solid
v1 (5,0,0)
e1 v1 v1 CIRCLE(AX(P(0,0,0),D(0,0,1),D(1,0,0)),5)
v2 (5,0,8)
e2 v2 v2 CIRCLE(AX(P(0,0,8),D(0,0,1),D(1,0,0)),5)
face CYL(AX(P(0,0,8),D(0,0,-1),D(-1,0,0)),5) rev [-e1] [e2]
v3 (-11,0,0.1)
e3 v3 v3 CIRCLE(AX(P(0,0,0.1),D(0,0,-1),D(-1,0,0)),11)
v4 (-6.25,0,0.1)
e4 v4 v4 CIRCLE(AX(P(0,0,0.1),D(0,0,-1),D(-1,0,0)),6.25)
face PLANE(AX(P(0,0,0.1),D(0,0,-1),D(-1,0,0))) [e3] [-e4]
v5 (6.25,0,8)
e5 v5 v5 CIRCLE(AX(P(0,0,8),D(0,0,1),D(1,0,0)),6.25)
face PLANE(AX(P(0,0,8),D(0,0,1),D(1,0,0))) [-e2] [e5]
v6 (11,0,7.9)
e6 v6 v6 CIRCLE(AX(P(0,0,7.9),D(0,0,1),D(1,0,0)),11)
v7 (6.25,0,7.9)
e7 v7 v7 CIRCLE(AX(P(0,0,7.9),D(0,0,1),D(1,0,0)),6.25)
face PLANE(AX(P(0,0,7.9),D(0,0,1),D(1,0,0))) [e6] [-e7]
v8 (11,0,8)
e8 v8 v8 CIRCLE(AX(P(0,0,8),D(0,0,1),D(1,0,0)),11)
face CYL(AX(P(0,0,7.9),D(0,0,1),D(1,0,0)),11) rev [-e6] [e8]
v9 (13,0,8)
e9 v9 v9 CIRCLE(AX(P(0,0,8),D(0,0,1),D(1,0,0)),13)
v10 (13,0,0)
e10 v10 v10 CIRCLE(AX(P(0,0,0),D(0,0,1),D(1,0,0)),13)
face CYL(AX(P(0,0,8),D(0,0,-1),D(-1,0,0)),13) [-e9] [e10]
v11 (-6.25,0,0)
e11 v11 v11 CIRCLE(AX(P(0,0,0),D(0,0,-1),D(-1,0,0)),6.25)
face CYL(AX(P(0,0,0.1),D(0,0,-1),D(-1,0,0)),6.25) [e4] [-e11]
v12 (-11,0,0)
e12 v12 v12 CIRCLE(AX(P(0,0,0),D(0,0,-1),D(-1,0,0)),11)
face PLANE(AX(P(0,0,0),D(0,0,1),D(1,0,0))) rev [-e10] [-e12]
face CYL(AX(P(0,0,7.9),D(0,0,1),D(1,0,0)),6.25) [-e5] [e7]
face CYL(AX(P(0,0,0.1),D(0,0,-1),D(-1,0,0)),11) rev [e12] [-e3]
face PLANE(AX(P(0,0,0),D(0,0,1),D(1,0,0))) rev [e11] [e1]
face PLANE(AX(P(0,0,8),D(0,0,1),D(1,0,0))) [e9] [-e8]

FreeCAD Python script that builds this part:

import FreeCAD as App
import Part
import Sketcher
Q = App.Units.Quantity

doc = App.newDocument("Part")
body = doc.addObject("PartDesign::Body", "Body")

# Sketch on XY plane
sketch1 = body.newObject("Sketcher::SketchObject", "Sketch")
sketch1.AttachmentSupport = (doc.getObject("XY_Plane"), [""])
sketch1.MapMode = "FlatFace"
sketch1.addGeometry([
    Part.Circle(App.Vector(0, 0, 0), App.Vector(0, 0, 1), 13),
    Part.Circle(App.Vector(0, 0, 0), App.Vector(0, 0, 1), 5),
], False)
sketch1.addConstraint([
    Sketcher.Constraint("Coincident", 0, 3, -1, 1),
    Sketcher.Constraint("Coincident", 1, 3, -1, 1),
    Sketcher.Constraint("Diameter", 0, Q("26 mm")),
    Sketcher.Constraint("Diameter", 1, Q("10 mm")),
])
pad1 = body.newObject("PartDesign::Pad", "Pad")
pad1.Profile = sketch1
pad1.Length = 8

# Sketch on XY plane
sketch2 = body.newObject("Sketcher::SketchObject", "Sketch001")
sketch2.AttachmentSupport = (doc.getObject("XY_Plane"), [""])
sketch2.MapMode = "FlatFace"
sketch2.AttachmentOffset = App.Placement(App.Vector(0, 0, 8), App.Rotation())
sketch2.addGeometry([
    Part.Circle(App.Vector(0, 0, 0), App.Vector(0, 0, 1), 11),
    Part.Circle(App.Vector(0, 0, 0), App.Vector(0, 0, 1), 6),
], False)
sketch2.addConstraint([
    Sketcher.Constraint("Coincident", 0, 3, -1, 1),
    Sketcher.Constraint("Coincident", 1, 3, -1, 1),
    Sketcher.Constraint("Diameter", 0, Q("22 mm")),
    Sketcher.Constraint("Diameter", 1, Q("12.5 mm")),
])
pocket1 = body.newObject("PartDesign::Pocket", "Pocket")
pocket1.Profile = sketch2
pocket1.Length = 0.1

# Sketch on XY plane
sketch3 = body.newObject("Sketcher::SketchObject", "Sketch002")
sketch3.AttachmentSupport = (doc.getObject("XY_Plane"), [""])
sketch3.MapMode = "FlatFace"
sketch3.AttachmentOffset = App.Placement(App.Vector(0, 0, 0.1), App.Rotation())
sketch3.addGeometry([
    Part.Circle(App.Vector(0, 0, 0), App.Vector(0, 0, 1), 11),
    Part.Circle(App.Vector(0, 0, 0), App.Vector(0, 0, 1), 6),
], False)
sketch3.addConstraint([
    Sketcher.Constraint("Coincident", 0, 3, -1, 1),
    Sketcher.Constraint("Coincident", 1, 3, -1, 1),
    Sketcher.Constraint("Diameter", 0, Q("22 mm")),
    Sketcher.Constraint("Diameter", 1, Q("12.5 mm")),
])
pocket2 = body.newObject("PartDesign::Pocket", "Pocket001")
pocket2.Profile = sketch3
pocket2.Length = 0.1

doc.recompute()
